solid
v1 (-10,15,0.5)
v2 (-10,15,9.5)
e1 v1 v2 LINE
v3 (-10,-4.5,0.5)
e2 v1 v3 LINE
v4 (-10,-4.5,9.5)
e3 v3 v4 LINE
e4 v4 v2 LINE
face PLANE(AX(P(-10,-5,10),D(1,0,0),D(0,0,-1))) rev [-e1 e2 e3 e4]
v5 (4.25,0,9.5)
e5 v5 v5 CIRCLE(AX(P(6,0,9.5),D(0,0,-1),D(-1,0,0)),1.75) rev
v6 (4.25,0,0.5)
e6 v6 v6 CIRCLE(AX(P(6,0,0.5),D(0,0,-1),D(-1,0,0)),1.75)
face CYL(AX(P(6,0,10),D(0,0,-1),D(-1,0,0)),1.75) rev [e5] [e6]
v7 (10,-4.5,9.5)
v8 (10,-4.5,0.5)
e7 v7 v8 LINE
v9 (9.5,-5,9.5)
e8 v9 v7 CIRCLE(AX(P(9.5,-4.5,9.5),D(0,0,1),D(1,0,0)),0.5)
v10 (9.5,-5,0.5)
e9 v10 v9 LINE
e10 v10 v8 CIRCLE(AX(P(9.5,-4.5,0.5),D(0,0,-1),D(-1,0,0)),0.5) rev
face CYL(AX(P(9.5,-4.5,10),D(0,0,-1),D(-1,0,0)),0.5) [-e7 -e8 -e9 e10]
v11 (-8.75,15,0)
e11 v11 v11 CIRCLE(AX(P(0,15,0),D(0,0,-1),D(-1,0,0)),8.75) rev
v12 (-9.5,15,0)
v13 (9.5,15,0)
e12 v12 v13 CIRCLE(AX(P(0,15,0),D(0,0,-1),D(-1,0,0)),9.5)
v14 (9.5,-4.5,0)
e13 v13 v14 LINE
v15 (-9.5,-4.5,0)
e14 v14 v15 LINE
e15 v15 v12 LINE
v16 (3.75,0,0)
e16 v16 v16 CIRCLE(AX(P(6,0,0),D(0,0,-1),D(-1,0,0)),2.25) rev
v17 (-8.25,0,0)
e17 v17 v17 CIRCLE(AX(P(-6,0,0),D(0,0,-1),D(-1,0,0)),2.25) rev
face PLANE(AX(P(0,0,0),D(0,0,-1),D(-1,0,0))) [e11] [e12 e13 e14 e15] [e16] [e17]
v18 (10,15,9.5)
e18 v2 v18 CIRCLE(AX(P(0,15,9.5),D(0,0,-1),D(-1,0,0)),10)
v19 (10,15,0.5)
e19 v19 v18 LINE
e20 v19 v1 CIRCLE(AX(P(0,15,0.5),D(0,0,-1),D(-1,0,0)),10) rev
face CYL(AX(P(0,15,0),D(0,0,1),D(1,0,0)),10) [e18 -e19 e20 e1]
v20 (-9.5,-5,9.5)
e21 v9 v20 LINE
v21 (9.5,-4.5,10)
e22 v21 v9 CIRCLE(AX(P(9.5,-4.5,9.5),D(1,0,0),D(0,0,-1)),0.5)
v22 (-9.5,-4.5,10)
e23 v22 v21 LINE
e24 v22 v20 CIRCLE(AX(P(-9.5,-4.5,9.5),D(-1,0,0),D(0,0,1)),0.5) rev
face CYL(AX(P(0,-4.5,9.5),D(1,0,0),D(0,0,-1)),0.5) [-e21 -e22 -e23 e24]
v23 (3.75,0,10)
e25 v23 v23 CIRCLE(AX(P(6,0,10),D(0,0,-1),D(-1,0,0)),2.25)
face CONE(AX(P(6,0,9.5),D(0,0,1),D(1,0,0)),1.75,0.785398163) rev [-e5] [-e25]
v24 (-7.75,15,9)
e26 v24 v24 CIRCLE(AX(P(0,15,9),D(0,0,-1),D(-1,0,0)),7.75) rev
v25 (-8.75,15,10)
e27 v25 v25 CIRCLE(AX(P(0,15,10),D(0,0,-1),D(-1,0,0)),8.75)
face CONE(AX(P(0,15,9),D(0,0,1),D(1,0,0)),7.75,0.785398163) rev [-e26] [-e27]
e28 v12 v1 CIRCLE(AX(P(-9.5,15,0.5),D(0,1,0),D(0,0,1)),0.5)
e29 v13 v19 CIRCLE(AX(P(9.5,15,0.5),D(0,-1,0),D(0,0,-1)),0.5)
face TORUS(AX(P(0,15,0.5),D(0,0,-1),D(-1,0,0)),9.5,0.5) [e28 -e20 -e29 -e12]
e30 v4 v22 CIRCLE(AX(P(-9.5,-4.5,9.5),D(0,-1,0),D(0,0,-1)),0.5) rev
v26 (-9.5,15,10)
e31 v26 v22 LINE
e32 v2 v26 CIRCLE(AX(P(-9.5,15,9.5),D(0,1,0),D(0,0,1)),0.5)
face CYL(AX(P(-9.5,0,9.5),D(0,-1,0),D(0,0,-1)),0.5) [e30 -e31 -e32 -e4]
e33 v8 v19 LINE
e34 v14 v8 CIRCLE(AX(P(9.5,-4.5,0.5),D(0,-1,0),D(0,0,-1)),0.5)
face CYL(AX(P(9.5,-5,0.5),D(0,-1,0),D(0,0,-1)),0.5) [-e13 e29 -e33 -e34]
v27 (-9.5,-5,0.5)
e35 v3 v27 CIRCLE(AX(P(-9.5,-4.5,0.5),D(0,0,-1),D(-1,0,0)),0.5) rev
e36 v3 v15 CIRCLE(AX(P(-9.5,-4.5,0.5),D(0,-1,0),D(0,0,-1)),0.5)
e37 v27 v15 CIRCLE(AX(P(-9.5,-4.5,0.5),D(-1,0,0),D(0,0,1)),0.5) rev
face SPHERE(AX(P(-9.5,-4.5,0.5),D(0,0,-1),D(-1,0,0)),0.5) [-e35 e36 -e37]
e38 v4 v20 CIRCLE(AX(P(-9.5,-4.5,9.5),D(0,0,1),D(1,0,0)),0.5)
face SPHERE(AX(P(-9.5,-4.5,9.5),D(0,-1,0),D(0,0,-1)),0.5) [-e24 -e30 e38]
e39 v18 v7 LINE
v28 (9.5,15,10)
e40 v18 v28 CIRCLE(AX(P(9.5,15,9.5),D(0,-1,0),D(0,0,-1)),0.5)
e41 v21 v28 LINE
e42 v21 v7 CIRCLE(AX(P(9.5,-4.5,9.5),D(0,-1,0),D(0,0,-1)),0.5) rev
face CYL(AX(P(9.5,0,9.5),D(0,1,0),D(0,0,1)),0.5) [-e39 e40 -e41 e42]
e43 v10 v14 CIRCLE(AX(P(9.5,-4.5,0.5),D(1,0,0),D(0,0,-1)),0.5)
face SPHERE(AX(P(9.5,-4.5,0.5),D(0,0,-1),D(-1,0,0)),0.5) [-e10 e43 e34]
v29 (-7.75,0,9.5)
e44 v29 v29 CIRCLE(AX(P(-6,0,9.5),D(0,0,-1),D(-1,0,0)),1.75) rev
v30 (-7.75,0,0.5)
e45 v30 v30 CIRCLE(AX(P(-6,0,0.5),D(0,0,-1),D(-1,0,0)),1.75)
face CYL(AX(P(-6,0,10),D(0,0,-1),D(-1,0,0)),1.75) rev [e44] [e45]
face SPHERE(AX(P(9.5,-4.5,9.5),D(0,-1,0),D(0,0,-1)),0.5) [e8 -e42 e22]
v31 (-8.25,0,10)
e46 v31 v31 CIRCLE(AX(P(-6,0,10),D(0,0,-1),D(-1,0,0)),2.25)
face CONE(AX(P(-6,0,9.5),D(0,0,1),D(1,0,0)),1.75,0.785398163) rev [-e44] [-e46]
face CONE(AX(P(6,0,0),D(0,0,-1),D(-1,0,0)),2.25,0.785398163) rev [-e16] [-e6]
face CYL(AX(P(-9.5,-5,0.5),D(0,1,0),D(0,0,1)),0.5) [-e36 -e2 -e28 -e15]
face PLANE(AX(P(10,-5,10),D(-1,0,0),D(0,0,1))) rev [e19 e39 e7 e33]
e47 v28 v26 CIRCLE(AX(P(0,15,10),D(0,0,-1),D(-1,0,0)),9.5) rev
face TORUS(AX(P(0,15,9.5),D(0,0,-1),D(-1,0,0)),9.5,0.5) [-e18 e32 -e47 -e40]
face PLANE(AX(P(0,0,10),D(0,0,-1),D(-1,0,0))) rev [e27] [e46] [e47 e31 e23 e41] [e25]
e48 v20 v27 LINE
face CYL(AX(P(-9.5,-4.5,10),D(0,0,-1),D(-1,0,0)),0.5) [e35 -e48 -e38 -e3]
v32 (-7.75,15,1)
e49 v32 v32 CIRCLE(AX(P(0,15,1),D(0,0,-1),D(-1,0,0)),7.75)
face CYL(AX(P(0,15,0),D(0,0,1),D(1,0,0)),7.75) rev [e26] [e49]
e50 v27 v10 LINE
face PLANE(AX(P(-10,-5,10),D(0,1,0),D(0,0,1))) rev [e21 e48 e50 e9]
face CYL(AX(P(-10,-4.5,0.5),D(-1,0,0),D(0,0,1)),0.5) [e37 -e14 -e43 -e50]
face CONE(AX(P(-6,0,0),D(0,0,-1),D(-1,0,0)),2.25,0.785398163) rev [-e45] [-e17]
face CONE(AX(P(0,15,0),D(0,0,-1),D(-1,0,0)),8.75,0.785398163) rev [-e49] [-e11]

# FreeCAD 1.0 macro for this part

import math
import FreeCAD as App
import Part
import Sketcher

V = App.Vector


def edges_at(feature, points):
    """Names of the edges that pass closest to the given points."""
    edges = feature.Shape.Edges
    near = lambda p: min(range(len(edges)), key=lambda i: edges[i].distToShape(Part.Vertex(*p))[0])
    return sorted({f"Edge{near(p) + 1}" for p in points})


def add_polygon(sketch, points):
    """Adds a closed chain of lines whose ends are joined by coincident constraints."""
    first, n = sketch.GeometryCount, len(points)
    for a, b in zip(points, points[1:] + points[:1]):
        sketch.addGeometry(Part.LineSegment(App.Vector(*a, 0), App.Vector(*b, 0)), False)
    for i in range(n):
        sketch.addConstraint(Sketcher.Constraint("Coincident", first + i, 2, first + (i + 1) % n, 1))

doc = App.newDocument("Part")
body = doc.addObject("PartDesign::Body", "Body")

# Sketch on XY plane
sketch1 = doc.addObject("Sketcher::SketchObject", "Sketch")
body.addObject(sketch1)
sketch1.AttachmentSupport = (doc.XY_Plane, [""])
sketch1.MapMode = "FlatFace"
add_polygon(sketch1, [(-10, 5), (-10, -5), (10, -5), (10, 5)])  # lines 0-3
sketch1.addGeometry(Part.Circle(V(-6, 0, 0), V(0, 0, 1), 1.8), False)  # 4
sketch1.addGeometry(Part.Circle(V(6, 0, 0), V(0, 0, 1), 1.8), False)  # 5
sketch1.addConstraint([
    Sketcher.Constraint("Vertical", 0),
    Sketcher.Constraint("Horizontal", 1),
    Sketcher.Constraint("Vertical", 2),
    Sketcher.Constraint("Horizontal", 3),
    Sketcher.Constraint("Equal", 4, 5),
    Sketcher.Constraint("Symmetric", 4, 3, 5, 3, -1, 1),
    Sketcher.Constraint("Symmetric", 0, 2, 2, 2, -1, 1),
    Sketcher.Constraint("PointOnObject", 4, 3, -1),
    Sketcher.Constraint("Diameter", 4, 3.5),
    Sketcher.Constraint("DistanceX", 1, 1, 1, 2, 20.0),
    Sketcher.Constraint("DistanceY", 0, 2, 0, 1, 10.0),
    Sketcher.Constraint("DistanceX", 4, 3, -1, 1, 6.0),
])
pad1 = doc.addObject("PartDesign::Pad", "Pad")
body.addObject(pad1)
pad1.Profile = sketch1
pad1.Length = 10

# Sketch on XY plane
sketch2 = doc.addObject("Sketcher::SketchObject", "Sketch001")
body.addObject(sketch2)
sketch2.AttachmentSupport = (doc.XY_Plane, [""])
sketch2.MapMode = "FlatFace"
sketch2.AttachmentOffset = App.Placement(V(0, 0, 10), App.Rotation())
sketch2.addGeometry([
    Part.LineSegment(V(-10, 15, 0), V(-10, 5, 0)),  # 0
    Part.LineSegment(V(-10, 5, 0), V(10, 5, 0)),  # 1
    Part.LineSegment(V(10, 5, 0), V(10, 15, 0)),  # 2
    Part.ArcOfCircle(Part.Circle(V(0, 15, 0), V(0, 0, 1), 10), math.radians(0), math.radians(180)),  # 3
    Part.Circle(V(0, 15, 0), V(0, 0, 1), 8),  # 4
], False)
sketch2.addConstraint([
    Sketcher.Constraint("Coincident", 0, 2, 1, 1),
    Sketcher.Constraint("Coincident", 1, 2, 2, 1),
    Sketcher.Constraint("Tangent", 2, 2, 3, 1),
    Sketcher.Constraint("Tangent", 3, 2, 0, 1),
    Sketcher.Constraint("Vertical", 0),
    Sketcher.Constraint("Horizontal", 1),
    Sketcher.Constraint("Vertical", 2),
    Sketcher.Constraint("Coincident", 4, 3, 3, 3),
    Sketcher.Constraint("PointOnObject", 3, 3, -2),
    Sketcher.Constraint("Radius", 3, 10.0),
    Sketcher.Constraint("Diameter", 4, 15.5),
    Sketcher.Constraint("DistanceY", 0, 2, 0, 1, 10.0),
    Sketcher.Constraint("DistanceY", -1, 1, 3, 3, 15.0),
])
pad2 = doc.addObject("PartDesign::Pad", "Pad001")
body.addObject(pad2)
pad2.Profile = sketch2
pad2.Length = 10
pad2.Reversed = True
doc.recompute()

chamfer = doc.addObject("PartDesign::Chamfer", "Chamfer")
body.addObject(chamfer)
chamfer.Base = (pad2, edges_at(pad2, [(-7.75, 15, 10), (-7.75, 15, 0)]))
chamfer.Size = 1
doc.recompute()

chamfer2 = doc.addObject("PartDesign::Chamfer", "Chamfer001")
body.addObject(chamfer2)
chamfer2.Base = (chamfer, edges_at(chamfer, [
    (-7.75, 0, 0),
    (-7.75, 0, 10),
    (4.25, 0, 0),
    (4.25, 0, 10),
]))
chamfer2.Size = 0.5
doc.recompute()

fillet = doc.addObject("PartDesign::Fillet", "Fillet")
body.addObject(fillet)
fillet.Base = (chamfer2, edges_at(chamfer2, [
    (-10, 5, 10),
    (0, -5, 10),
    (0, 25, 0),
    (0, 25, 10),
    (10, 5, 10),
    (0, -5, 0),
    (-10, 5, 0),
    (10, 5, 0),
    (10, -5, 5),
    (-10, -5, 5),
]))
fillet.Radius = 0.5

doc.recompute()
